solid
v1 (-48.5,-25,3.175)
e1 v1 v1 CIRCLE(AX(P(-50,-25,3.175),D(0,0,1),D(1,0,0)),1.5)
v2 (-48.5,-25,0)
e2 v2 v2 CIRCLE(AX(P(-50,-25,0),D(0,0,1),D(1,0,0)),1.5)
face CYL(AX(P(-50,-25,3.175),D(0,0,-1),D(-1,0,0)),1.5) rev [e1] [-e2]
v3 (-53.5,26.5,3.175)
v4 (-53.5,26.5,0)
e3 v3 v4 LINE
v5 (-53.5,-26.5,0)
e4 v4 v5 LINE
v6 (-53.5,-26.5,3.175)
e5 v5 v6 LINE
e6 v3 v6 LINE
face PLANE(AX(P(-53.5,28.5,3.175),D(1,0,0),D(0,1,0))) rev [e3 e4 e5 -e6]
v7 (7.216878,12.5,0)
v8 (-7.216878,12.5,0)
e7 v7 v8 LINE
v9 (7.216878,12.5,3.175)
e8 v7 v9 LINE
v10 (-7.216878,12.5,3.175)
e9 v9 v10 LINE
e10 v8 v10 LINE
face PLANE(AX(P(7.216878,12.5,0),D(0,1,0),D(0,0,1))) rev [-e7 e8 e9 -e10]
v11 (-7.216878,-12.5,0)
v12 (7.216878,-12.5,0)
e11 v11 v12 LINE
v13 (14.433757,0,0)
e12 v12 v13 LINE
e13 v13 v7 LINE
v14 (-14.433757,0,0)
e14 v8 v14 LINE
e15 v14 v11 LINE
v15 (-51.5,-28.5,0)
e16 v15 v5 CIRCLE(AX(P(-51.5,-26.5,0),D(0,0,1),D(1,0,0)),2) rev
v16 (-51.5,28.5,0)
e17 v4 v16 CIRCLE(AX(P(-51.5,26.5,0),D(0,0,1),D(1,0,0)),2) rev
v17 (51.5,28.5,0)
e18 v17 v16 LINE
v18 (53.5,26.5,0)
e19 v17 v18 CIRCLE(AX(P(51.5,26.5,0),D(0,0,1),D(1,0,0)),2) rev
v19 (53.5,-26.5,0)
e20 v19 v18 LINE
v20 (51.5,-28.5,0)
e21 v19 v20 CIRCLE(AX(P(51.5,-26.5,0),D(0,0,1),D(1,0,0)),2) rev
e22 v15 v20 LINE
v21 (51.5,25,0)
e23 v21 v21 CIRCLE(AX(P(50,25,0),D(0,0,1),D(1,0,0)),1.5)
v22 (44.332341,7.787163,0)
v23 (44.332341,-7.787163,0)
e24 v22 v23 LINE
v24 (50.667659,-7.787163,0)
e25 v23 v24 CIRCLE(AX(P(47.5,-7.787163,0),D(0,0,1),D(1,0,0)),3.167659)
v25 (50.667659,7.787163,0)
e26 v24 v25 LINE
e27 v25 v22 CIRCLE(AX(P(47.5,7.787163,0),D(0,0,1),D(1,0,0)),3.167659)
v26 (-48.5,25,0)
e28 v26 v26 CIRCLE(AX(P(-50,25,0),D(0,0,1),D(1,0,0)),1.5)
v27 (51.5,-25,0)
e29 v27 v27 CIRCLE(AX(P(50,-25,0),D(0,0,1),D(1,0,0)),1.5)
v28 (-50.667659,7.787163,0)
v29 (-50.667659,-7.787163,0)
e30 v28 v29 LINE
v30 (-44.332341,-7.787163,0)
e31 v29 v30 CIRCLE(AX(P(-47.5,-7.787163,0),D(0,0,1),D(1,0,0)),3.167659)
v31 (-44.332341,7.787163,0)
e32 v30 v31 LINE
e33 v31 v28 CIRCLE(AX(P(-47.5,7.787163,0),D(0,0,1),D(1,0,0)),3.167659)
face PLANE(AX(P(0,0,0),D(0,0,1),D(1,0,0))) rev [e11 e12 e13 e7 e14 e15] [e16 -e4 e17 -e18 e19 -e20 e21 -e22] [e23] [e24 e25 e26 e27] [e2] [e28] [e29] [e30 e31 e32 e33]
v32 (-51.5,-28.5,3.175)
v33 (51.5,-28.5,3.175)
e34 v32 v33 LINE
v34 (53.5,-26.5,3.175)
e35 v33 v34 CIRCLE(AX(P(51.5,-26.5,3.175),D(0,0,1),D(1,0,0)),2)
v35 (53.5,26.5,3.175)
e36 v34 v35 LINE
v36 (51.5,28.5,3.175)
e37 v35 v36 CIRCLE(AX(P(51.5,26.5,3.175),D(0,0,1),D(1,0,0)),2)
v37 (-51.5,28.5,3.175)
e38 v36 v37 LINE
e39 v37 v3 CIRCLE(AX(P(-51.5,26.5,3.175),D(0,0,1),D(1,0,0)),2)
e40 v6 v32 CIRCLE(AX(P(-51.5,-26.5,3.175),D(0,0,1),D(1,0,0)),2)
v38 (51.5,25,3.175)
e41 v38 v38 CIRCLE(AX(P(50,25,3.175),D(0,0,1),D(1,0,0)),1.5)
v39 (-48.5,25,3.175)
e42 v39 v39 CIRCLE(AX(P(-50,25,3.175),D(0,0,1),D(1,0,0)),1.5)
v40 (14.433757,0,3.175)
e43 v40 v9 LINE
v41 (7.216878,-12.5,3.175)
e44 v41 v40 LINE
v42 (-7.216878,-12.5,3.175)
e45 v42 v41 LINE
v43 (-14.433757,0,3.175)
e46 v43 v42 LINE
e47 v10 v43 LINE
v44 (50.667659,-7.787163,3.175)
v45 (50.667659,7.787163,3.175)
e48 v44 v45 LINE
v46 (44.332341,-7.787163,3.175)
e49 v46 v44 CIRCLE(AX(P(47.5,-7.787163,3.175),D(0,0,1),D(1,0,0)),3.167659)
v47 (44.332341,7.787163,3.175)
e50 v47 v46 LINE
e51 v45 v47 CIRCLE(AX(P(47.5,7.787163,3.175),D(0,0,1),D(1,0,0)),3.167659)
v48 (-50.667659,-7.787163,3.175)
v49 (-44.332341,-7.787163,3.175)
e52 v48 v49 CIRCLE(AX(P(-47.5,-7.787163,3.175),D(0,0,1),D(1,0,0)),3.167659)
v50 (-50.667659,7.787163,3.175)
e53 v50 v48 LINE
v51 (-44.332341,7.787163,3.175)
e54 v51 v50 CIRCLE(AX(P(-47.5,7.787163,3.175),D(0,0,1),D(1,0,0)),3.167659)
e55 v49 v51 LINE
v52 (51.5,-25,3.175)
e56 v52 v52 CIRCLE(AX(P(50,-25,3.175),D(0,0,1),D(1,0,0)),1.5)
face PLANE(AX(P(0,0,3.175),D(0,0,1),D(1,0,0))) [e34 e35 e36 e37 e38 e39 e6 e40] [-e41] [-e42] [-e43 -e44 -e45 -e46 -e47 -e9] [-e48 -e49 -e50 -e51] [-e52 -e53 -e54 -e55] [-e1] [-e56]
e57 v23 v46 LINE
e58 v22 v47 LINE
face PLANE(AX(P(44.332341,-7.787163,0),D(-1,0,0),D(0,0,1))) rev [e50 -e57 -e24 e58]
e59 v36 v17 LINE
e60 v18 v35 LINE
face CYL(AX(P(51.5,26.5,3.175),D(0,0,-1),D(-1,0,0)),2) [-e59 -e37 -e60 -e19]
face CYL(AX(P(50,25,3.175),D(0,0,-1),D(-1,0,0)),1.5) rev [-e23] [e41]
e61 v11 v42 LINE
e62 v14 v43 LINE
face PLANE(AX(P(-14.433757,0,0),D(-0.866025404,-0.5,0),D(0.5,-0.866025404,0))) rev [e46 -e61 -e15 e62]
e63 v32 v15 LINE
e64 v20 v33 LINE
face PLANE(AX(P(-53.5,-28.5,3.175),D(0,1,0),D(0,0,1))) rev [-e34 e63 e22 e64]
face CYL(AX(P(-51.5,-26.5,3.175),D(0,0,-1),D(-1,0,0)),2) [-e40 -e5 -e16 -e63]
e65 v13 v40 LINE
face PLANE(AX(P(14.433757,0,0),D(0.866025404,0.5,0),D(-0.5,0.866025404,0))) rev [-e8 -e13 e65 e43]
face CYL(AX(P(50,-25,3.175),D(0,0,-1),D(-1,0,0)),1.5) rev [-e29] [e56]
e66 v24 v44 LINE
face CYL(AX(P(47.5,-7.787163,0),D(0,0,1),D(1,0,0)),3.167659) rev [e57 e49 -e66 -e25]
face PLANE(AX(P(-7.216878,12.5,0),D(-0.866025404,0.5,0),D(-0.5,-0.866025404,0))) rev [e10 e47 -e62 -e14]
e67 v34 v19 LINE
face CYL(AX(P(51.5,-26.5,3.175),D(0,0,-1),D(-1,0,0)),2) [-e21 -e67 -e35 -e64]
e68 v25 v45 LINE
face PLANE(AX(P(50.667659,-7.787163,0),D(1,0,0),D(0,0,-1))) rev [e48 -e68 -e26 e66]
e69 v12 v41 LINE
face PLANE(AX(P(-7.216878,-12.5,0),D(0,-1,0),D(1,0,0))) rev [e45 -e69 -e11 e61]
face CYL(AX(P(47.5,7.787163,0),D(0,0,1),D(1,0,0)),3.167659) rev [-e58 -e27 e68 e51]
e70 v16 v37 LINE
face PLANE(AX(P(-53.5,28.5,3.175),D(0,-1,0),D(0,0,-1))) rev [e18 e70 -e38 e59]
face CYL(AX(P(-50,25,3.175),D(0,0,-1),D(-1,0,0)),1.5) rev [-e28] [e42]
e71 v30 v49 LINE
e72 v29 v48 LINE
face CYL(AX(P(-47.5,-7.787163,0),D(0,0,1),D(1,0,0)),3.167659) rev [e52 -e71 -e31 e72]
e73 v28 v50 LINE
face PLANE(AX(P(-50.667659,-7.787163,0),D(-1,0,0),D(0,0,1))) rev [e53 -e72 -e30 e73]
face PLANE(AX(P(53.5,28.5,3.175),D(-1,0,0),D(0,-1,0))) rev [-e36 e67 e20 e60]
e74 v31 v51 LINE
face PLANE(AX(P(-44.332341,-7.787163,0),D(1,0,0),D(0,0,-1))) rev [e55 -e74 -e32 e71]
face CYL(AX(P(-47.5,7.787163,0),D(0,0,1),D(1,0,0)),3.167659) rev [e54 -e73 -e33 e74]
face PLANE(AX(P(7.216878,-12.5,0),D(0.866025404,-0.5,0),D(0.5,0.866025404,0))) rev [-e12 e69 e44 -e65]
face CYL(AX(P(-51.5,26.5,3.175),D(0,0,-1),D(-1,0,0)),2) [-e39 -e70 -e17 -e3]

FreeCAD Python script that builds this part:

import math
import FreeCAD as App
import Part
import Sketcher
Q = App.Units.Quantity


def edges_at(feature, points):
    """Names of the edges that pass closest to the given points."""
    edges = feature.Shape.Edges
    near = lambda p: min(range(len(edges)), key=lambda i: edges[i].distToShape(Part.Vertex(*p))[0])
    return sorted({f"Edge{near(p) + 1}" for p in points})


def add_polygon(sketch, points):
    """Adds a closed chain of lines whose ends are joined by coincident constraints."""
    first, n = sketch.GeometryCount, len(points)
    for a, b in zip(points, points[1:] + points[:1]):
        sketch.addGeometry(Part.LineSegment(App.Vector(*a, 0), App.Vector(*b, 0)), False)
    for i in range(n):
        sketch.addConstraint(Sketcher.Constraint("Coincident", first + i, 2, first + (i + 1) % n, 1))

doc = App.newDocument("Part")
body = doc.addObject("PartDesign::Body", "Body")

sketch1 = doc.addObject("Sketcher::SketchObject", "Sketch")
body.addObject(sketch1)
sketch1.AttachmentSupport = (doc.XY_Plane, [""])
sketch1.MapMode = "FlatFace"
add_polygon(sketch1, [(-53.5, 28.5), (-53.5, -28.5), (53.5, -28.5), (53.5, 28.5)])
sketch1.addGeometry(Part.Circle(App.Vector(-50, -25, 0), App.Vector(0, 0, 1), 1.5), False)
sketch1.addGeometry(Part.Circle(App.Vector(50, -25, 0), App.Vector(0, 0, 1), 1.5), False)
sketch1.addGeometry(Part.Circle(App.Vector(-50, 25, 0), App.Vector(0, 0, 1), 1.5), False)
sketch1.addGeometry(Part.Circle(App.Vector(50, 25, 0), App.Vector(0, 0, 1), 1.5), False)
sketch1.addConstraint(Sketcher.Constraint("Vertical", 0))
sketch1.addConstraint(Sketcher.Constraint("Horizontal", 1))
sketch1.addConstraint(Sketcher.Constraint("Vertical", 2))
sketch1.addConstraint(Sketcher.Constraint("Horizontal", 3))
sketch1.addConstraint(Sketcher.Constraint("Equal", 4, 5))
sketch1.addConstraint(Sketcher.Constraint("Equal", 5, 6))
sketch1.addConstraint(Sketcher.Constraint("Equal", 6, 7))
sketch1.addConstraint(Sketcher.Constraint("Symmetric", 5, 3, 6, 3, -1, 1))
sketch1.addConstraint(Sketcher.Constraint("Symmetric", 4, 3, 7, 3, -1, 1))
sketch1.addConstraint(Sketcher.Constraint("Symmetric", 0, 2, 2, 2, -1, 1))
sketch1.addConstraint(Sketcher.Constraint("Symmetric", 4, 3, 5, 3, -2))
sketch1.addConstraint(Sketcher.Constraint("Diameter", 4, 3.0))
sketch1.addConstraint(Sketcher.Constraint("DistanceX", 1, 1, 1, 2, 107.0))
sketch1.addConstraint(Sketcher.Constraint("DistanceY", 0, 2, 0, 1, 57.0))
sketch1.addConstraint(Sketcher.Constraint("DistanceX", 4, 3, -1, 1, 50.0))
sketch1.addConstraint(Sketcher.Constraint("DistanceY", 4, 3, -1, 1, 25.0))
pad1 = doc.addObject("PartDesign::Pad", "Pad")
body.addObject(pad1)
pad1.Profile = sketch1
pad1.Length = 3.175
doc.recompute()

fillet = doc.addObject("PartDesign::Fillet", "Fillet")
body.addObject(fillet)
fillet.Base = (pad1, edges_at(pad1, [
    (-53.5, 28.5, 1.587),
    (53.5, 28.5, 1.587),
    (53.5, -28.5, 1.587),
    (-53.5, -28.5, 1.587),
]))
fillet.Radius = 2

sketch2 = doc.addObject("Sketcher::SketchObject", "Sketch001")
body.addObject(sketch2)
sketch2.AttachmentSupport = (doc.XY_Plane, [""])
sketch2.MapMode = "FlatFace"
sketch2.AttachmentOffset = App.Placement(App.Vector(0, 0, 3.175), App.Rotation())
sketch2.addGeometry(Part.LineSegment(App.Vector(44.332341, 7.787163, 0), App.Vector(44.332341, -7.787163, 0)), False)
sketch2.addGeometry(Part.ArcOfCircle(Part.Circle(App.Vector(47.5, -7.787163, 0), App.Vector(0, 0, 1), 3.167659), math.radians(180), math.radians(360)), False)
sketch2.addGeometry(Part.LineSegment(App.Vector(50.667659, -7.787163, 0), App.Vector(50.667659, 7.787163, 0)), False)
sketch2.addGeometry(Part.ArcOfCircle(Part.Circle(App.Vector(47.5, 7.787163, 0), App.Vector(0, 0, 1), 3.167659), math.radians(0), math.radians(180)), False)
sketch2.addGeometry(Part.LineSegment(App.Vector(-50.667659, 7.787163, 0), App.Vector(-50.667659, -7.787163, 0)), False)
sketch2.addGeometry(Part.ArcOfCircle(Part.Circle(App.Vector(-47.5, -7.787163, 0), App.Vector(0, 0, 1), 3.167659), math.radians(180), math.radians(360)), False)
sketch2.addGeometry(Part.LineSegment(App.Vector(-44.332341, -7.787163, 0), App.Vector(-44.332341, 7.787163, 0)), False)
sketch2.addGeometry(Part.ArcOfCircle(Part.Circle(App.Vector(-47.5, 7.787163, 0), App.Vector(0, 0, 1), 3.167659), math.radians(0), math.radians(180)), False)
add_polygon(sketch2, [(14.433757, 0), (7.216878, 12.5), (-7.216878, 12.5), (-14.433757, 0), (-7.216878, -12.5), (7.216878, -12.5)])
sketch2.addConstraint(Sketcher.Constraint("Tangent", 0, 2, 1, 1))
sketch2.addConstraint(Sketcher.Constraint("Tangent", 1, 2, 2, 1))
sketch2.addConstraint(Sketcher.Constraint("Tangent", 2, 2, 3, 1))
sketch2.addConstraint(Sketcher.Constraint("Tangent", 3, 2, 0, 1))
sketch2.addConstraint(Sketcher.Constraint("Tangent", 4, 2, 5, 1))
sketch2.addConstraint(Sketcher.Constraint("Tangent", 5, 2, 6, 1))
sketch2.addConstraint(Sketcher.Constraint("Tangent", 6, 2, 7, 1))
sketch2.addConstraint(Sketcher.Constraint("Tangent", 7, 2, 4, 1))
sketch2.addConstraint(Sketcher.Constraint("Vertical", 0))
sketch2.addConstraint(Sketcher.Constraint("Vertical", 2))
sketch2.addConstraint(Sketcher.Constraint("Vertical", 4))
sketch2.addConstraint(Sketcher.Constraint("Vertical", 6))
sketch2.addConstraint(Sketcher.Constraint("Horizontal", 9))
sketch2.addConstraint(Sketcher.Constraint("Horizontal", 12))
sketch2.addConstraint(Sketcher.Constraint("Equal", 3, 5))
sketch2.addConstraint(Sketcher.Constraint("Symmetric", 3, 3, 5, 3, -1, 1))
sketch2.addConstraint(Sketcher.Constraint("Symmetric", 8, 2, 11, 2, -1, 1))
sketch2.addConstraint(Sketcher.Constraint("Symmetric", 10, 2, 13, 2, -1, 1))
sketch2.addConstraint(Sketcher.Constraint("PointOnObject", 10, 2, -1))
sketch2.addConstraint(Sketcher.Constraint("Parallel", 10, 13))
sketch2.addConstraint(Sketcher.Constraint("Horizontal", 1, 3, 5, 3))
sketch2.addConstraint(Sketcher.Constraint("Horizontal", 3, 3, 7, 3))
sketch2.addConstraint(Sketcher.Constraint("Vertical", 9, 2, 11, 2))
sketch2.addConstraint(Sketcher.Constraint("Angle", 8, Q("120 deg")))
sketch2.addConstraint(Sketcher.Constraint("DistanceX", 5, 3, 1, 3, 95.0))
sketch2.addConstraint(Sketcher.Constraint("DistanceY", 11, 2, 9, 2, 25.0))
sketch2.addConstraint(Sketcher.Constraint("Radius", 1, 3.167659))
sketch2.addConstraint(Sketcher.Constraint("DistanceX", 9, 2, 9, 1, 14.433757))
sketch2.addConstraint(Sketcher.Constraint("DistanceY", 0, 2, 0, 1, 15.574325))
pocket1 = doc.addObject("PartDesign::Pocket", "Pocket")
body.addObject(pocket1)
pocket1.Profile = sketch2
pocket1.Length = 3.175

doc.recompute()
